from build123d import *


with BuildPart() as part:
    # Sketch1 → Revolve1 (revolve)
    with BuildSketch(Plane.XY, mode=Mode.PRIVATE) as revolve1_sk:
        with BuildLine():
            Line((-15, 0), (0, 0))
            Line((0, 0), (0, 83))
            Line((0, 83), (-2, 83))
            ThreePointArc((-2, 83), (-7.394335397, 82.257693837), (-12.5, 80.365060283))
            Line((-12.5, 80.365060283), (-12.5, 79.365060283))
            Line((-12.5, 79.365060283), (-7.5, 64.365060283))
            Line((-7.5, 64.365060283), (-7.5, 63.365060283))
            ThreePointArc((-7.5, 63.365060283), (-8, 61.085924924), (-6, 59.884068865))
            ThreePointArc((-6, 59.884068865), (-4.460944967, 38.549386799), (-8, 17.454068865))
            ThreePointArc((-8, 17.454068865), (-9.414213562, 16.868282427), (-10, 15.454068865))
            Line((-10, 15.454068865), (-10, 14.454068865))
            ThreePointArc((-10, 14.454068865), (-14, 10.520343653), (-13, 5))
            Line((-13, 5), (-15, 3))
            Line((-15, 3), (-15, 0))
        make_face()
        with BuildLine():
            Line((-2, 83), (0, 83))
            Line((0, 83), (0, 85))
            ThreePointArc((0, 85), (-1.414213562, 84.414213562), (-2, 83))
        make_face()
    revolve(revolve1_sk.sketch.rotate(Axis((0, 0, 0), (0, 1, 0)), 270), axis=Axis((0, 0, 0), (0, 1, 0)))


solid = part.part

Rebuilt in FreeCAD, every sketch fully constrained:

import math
import FreeCAD as App
import Part
import Sketcher
from FreeCAD import Vector
Q = App.Units.Quantity

doc = App.newDocument("Part")
body = doc.addObject("PartDesign::Body", "Body")

sketch1 = body.newObject("Sketcher::SketchObject", "Sketch")
sketch1.AttachmentSupport = (doc.getObject("XY_Plane"), [""])
sketch1.MapMode = "FlatFace"
sketch1.addGeometry(Part.LineSegment(Vector(-15, 0, 0), Vector(0, 0, 0)), False)
sketch1.addGeometry(Part.LineSegment(Vector(0, 0, 0), Vector(0, 85, 0)), False)
sketch1.addGeometry(Part.ArcOfCircle(Part.Circle(Vector(0, 83, 0), Vector(0, 0, 1), 2), math.radians(90), math.radians(180)), False)
sketch1.addGeometry(Part.ArcOfCircle(Part.Circle(Vector(-1.3, 58, 0), Vector(0, 0, 1), 25), math.radians(92), math.radians(117)), False)
sketch1.addGeometry(Part.LineSegment(Vector(-12.5, 80.4, 0), Vector(-12.5, 79.4, 0)), False)
sketch1.addGeometry(Part.LineSegment(Vector(-12.5, 79.4, 0), Vector(-7.5, 64.4, 0)), False)
sketch1.addGeometry(Part.LineSegment(Vector(-7.5, 64.4, 0), Vector(-7.5, 63.4, 0)), False)
sketch1.addGeometry(Part.ArcOfCircle(Part.Circle(Vector(-6.2, 61.9, 0), Vector(0, 0, 1), 2), math.radians(132), math.radians(275)), False)
sketch1.addGeometry(Part.ArcOfCircle(Part.Circle(Vector(-94.4, 42.8, 0), Vector(0, 0, 1), 90), math.radians(-16), math.radians(11)), False)
sketch1.addGeometry(Part.ArcOfCircle(Part.Circle(Vector(-8, 15.5, 0), Vector(0, 0, 1), 2), math.radians(90), math.radians(180)), False)
sketch1.addGeometry(Part.LineSegment(Vector(-10, 15.5, 0), Vector(-10, 14.5, 0)), False)
sketch1.addGeometry(Part.ArcOfCircle(Part.Circle(Vector(-8.3, 8.7, 0), Vector(0, 0, 1), 6), math.radians(107), math.radians(218)), False)
sketch1.addGeometry(Part.LineSegment(Vector(-13, 5, 0), Vector(-15, 3, 0)), False)
sketch1.addGeometry(Part.LineSegment(Vector(-15, 3, 0), Vector(-15, 0, 0)), False)
sketch1.addConstraint(Sketcher.Constraint("Coincident", 0, 2, 1, 1))
sketch1.addConstraint(Sketcher.Constraint("Coincident", 1, 2, 2, 1))
sketch1.addConstraint(Sketcher.Constraint("Coincident", 2, 2, 3, 1))
sketch1.addConstraint(Sketcher.Constraint("Coincident", 3, 2, 4, 1))
sketch1.addConstraint(Sketcher.Constraint("Coincident", 4, 2, 5, 1))
sketch1.addConstraint(Sketcher.Constraint("Coincident", 5, 2, 6, 1))
sketch1.addConstraint(Sketcher.Constraint("Coincident", 6, 2, 7, 1))
sketch1.addConstraint(Sketcher.Constraint("Coincident", 7, 2, 8, 2))
sketch1.addConstraint(Sketcher.Constraint("Coincident", 8, 1, 9, 1))
sketch1.addConstraint(Sketcher.Constraint("Tangent", 9, 2, 10, 1))
sketch1.addConstraint(Sketcher.Constraint("Coincident", 10, 2, 11, 1))
sketch1.addConstraint(Sketcher.Constraint("Coincident", 11, 2, 12, 1))
sketch1.addConstraint(Sketcher.Constraint("Coincident", 12, 2, 13, 1))
sketch1.addConstraint(Sketcher.Constraint("Coincident", 13, 2, 0, 1))
sketch1.addConstraint(Sketcher.Constraint("Horizontal", 0))
sketch1.addConstraint(Sketcher.Constraint("Vertical", 1))
sketch1.addConstraint(Sketcher.Constraint("Vertical", 4))
sketch1.addConstraint(Sketcher.Constraint("Vertical", 6))
sketch1.addConstraint(Sketcher.Constraint("Vertical", 10))
sketch1.addConstraint(Sketcher.Constraint("Vertical", 13))
sketch1.addConstraint(Sketcher.Constraint("Coincident", 0, 2, -1, 1))
sketch1.addConstraint(Sketcher.Constraint("Equal", 2, 7))
sketch1.addConstraint(Sketcher.Constraint("Equal", 7, 9))
sketch1.addConstraint(Sketcher.Constraint("PointOnObject", 2, 3, -2))
sketch1.addConstraint(Sketcher.Constraint("Vertical", 9, 3, 8, 1))
sketch1.addConstraint(Sketcher.Constraint("Equal", 4, 6))
sketch1.addConstraint(Sketcher.Constraint("Equal", 6, 10))
sketch1.addConstraint(Sketcher.Constraint("Radius", 2, 2.0))
sketch1.addConstraint(Sketcher.Constraint("Radius", 3, 25.0))
sketch1.addConstraint(Sketcher.Constraint("Radius", 8, 90.0))
sketch1.addConstraint(Sketcher.Constraint("Radius", 11, 6.0))
sketch1.addConstraint(Sketcher.Constraint("DistanceX", 0, 1, 0, 2, 15.0))
sketch1.addConstraint(Sketcher.Constraint("DistanceY", 1, 1, 1, 2, 85.0))
sketch1.addConstraint(Sketcher.Constraint("DistanceY", 4, 2, 4, 1, 1.0))
sketch1.addConstraint(Sketcher.Constraint("DistanceY", 13, 2, 13, 1, 3.0))
sketch1.addConstraint(Sketcher.Constraint("Angle", 12, Q("-135 deg")))
sketch1.addConstraint(Sketcher.Constraint("DistanceX", 9, 3, -1, 1, 8.0))
sketch1.addConstraint(Sketcher.Constraint("DistanceY", -1, 1, 2, 2, 83.0))
sketch1.addConstraint(Sketcher.Constraint("DistanceX", 7, 2, -1, 1, 6.0))
sketch1.addConstraint(Sketcher.Constraint("DistanceX", 11, 2, -1, 1, 13.0))
sketch1.addConstraint(Sketcher.Constraint("DistanceX", 4, 2, 5, 2, 5.0))
sketch1.addConstraint(Sketcher.Constraint("DistanceY", 5, 2, 4, 2, 15.0))
sketch1.addConstraint(Sketcher.Constraint("DistanceX", 3, 2, -1, 1, 12.5))
sketch1.addConstraint(Sketcher.Constraint("DistanceY", 8, 1, 7, 2, 42.43))
sketch1.addConstraint(Sketcher.Constraint("DistanceX", 8, 3, 11, 3, 86.080099))
sketch1.addConstraint(Sketcher.Constraint("DistanceY", -1, 1, 3, 3, 58.009542))
revolution = body.newObject("PartDesign::Revolution", "Revolution")
revolution.Profile = sketch1
revolution.ReferenceAxis = (sketch1, ["V_Axis"])
revolution.Angle = 360

doc.recompute()
